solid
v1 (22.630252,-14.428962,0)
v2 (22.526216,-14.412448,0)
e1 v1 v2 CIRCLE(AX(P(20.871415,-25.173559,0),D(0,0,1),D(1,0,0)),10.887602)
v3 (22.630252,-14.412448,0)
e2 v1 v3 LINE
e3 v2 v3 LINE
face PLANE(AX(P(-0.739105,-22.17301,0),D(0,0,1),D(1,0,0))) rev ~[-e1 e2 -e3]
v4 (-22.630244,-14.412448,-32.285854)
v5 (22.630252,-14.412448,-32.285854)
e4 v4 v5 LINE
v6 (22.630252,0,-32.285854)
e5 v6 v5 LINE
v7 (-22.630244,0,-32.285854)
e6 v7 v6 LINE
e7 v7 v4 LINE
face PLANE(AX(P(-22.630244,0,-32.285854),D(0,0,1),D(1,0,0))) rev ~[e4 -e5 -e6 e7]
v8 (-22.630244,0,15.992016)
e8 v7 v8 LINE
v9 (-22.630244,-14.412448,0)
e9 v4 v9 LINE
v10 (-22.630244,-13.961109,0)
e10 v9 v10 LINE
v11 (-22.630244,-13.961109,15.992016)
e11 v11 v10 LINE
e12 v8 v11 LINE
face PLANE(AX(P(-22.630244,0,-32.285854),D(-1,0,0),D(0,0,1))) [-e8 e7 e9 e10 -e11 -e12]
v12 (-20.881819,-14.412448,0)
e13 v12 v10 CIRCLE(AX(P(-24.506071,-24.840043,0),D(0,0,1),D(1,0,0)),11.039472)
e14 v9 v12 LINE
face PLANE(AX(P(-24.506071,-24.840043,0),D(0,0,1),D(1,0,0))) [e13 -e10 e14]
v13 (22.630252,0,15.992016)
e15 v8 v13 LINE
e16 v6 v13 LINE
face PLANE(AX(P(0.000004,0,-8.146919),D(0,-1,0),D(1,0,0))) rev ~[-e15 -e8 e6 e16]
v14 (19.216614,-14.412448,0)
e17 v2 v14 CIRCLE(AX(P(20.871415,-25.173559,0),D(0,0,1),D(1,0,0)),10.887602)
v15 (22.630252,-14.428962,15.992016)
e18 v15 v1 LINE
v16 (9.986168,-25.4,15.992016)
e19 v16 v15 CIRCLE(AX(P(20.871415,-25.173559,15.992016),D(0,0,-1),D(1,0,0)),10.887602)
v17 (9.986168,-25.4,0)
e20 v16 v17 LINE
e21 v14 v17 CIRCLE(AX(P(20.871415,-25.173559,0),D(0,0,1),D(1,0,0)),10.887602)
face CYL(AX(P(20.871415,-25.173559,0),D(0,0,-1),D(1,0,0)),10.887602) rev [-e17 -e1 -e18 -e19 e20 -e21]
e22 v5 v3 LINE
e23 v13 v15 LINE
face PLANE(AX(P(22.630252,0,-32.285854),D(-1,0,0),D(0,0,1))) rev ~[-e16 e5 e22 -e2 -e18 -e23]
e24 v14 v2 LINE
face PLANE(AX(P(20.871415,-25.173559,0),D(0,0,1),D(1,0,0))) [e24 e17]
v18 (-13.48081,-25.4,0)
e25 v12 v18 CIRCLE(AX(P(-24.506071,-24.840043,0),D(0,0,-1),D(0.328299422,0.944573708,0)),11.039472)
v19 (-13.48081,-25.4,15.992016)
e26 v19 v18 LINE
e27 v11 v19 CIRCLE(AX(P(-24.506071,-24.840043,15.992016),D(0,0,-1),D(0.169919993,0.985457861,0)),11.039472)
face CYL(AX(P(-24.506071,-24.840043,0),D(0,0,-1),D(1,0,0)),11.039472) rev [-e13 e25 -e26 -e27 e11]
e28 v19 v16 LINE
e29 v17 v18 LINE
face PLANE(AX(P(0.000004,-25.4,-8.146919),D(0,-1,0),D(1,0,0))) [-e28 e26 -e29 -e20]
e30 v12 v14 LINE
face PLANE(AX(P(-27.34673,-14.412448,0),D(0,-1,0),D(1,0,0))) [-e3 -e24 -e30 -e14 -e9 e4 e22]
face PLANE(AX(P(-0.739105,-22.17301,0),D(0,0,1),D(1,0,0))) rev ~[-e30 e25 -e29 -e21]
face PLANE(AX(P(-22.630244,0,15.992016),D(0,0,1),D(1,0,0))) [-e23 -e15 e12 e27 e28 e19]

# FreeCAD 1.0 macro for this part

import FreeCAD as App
import Part
import Sketcher

V = App.Vector
Q = App.Units.Quantity


def add_polygon(sketch, points):
    """Adds a closed chain of lines whose ends are joined by coincident constraints."""
    first, n = sketch.GeometryCount, len(points)
    for a, b in zip(points, points[1:] + points[:1]):
        sketch.addGeometry(Part.LineSegment(App.Vector(*a, 0), App.Vector(*b, 0)), False)
    for i in range(n):
        sketch.addConstraint(Sketcher.Constraint("Coincident", first + i, 2, first + (i + 1) % n, 1))

doc = App.newDocument("Part")
body = doc.addObject("PartDesign::Body", "Body")

# Sketch on XZ plane
sketch1 = body.newObject("Sketcher::SketchObject", "Sketch")
sketch1.AttachmentSupport = (doc.getObject("XZ_Plane"), [""])
sketch1.MapMode = "FlatFace"
add_polygon(sketch1, [(-23, 16), (-23, -32), (23, -32), (23, 16)])  # lines 0-3
sketch1.addConstraint(Sketcher.Constraint("Vertical", 0))
sketch1.addConstraint(Sketcher.Constraint("Horizontal", 1))
sketch1.addConstraint(Sketcher.Constraint("Vertical", 2))
sketch1.addConstraint(Sketcher.Constraint("Horizontal", 3))
sketch1.addConstraint(Sketcher.Constraint("DistanceY", 0, 2, 0, 1, Q("48.27787 mm")))
sketch1.addConstraint(Sketcher.Constraint("DistanceX", 1, 1, 1, 2, Q("45.260496 mm")))
sketch1.addConstraint(Sketcher.Constraint("DistanceX", -1, 1, 1, 2, Q("22.630252 mm")))
sketch1.addConstraint(Sketcher.Constraint("DistanceY", 0, 2, -1, 1, Q("32.285854 mm")))
pad1 = body.newObject("PartDesign::Pad", "Pad")
pad1.Profile = sketch1
pad1.Length = Q("1 in")

# Sketch on XY plane
sketch2 = body.newObject("Sketcher::SketchObject", "Sketch001")
sketch2.AttachmentSupport = (doc.getObject("XY_Plane"), [""])
sketch2.MapMode = "FlatFace"
add_polygon(sketch2, [(-27, -14), (-27, -30), (26, -30), (26, -14)])  # lines 0-3
sketch2.addConstraint(Sketcher.Constraint("Vertical", 0))
sketch2.addConstraint(Sketcher.Constraint("Horizontal", 1))
sketch2.addConstraint(Sketcher.Constraint("Vertical", 2))
sketch2.addConstraint(Sketcher.Constraint("Horizontal", 3))
sketch2.addConstraint(Sketcher.Constraint("DistanceX", 1, 1, 1, 2, Q("53.21525 mm")))
sketch2.addConstraint(Sketcher.Constraint("DistanceY", 0, 2, 0, 1, Q("15.521124 mm")))
sketch2.addConstraint(Sketcher.Constraint("DistanceX", 0, 2, -1, 1, Q("27.34673 mm")))
sketch2.addConstraint(Sketcher.Constraint("DistanceY", 0, 2, -1, 1, Q("29.933572 mm")))
pocket1 = body.newObject("PartDesign::Pocket", "Pocket")
pocket1.Profile = sketch2
pocket1.Length = 39.375179

# Sketch on XY plane
sketch3 = body.newObject("Sketcher::SketchObject", "Sketch002")
sketch3.AttachmentSupport = (doc.getObject("XY_Plane"), [""])
sketch3.MapMode = "FlatFace"
sketch3.addGeometry(Part.Circle(V(21, -25, 0), V(0, 0, 1), 11), False)
sketch3.addGeometry(Part.Circle(V(-25, -25, 0), V(0, 0, 1), 11), False)
sketch3.addConstraint(Sketcher.Constraint("Diameter", 0, Q("21.775204 mm")))
sketch3.addConstraint(Sketcher.Constraint("Diameter", 1, Q("22.078944 mm")))
sketch3.addConstraint(Sketcher.Constraint("DistanceY", 0, 3, -1, 1, Q("25.173559 mm")))
sketch3.addConstraint(Sketcher.Constraint("DistanceX", 1, 3, -1, 1, Q("24.506071 mm")))
sketch3.addConstraint(Sketcher.Constraint("DistanceX", -1, 1, 0, 3, Q("20.871415 mm")))
sketch3.addConstraint(Sketcher.Constraint("DistanceY", 1, 3, -1, 1, Q("24.840043 mm")))
pocket2 = body.newObject("PartDesign::Pocket", "Pocket001")
pocket2.Profile = sketch3
pocket2.Length = 23.324139
pocket2.Reversed = True

doc.recompute()
